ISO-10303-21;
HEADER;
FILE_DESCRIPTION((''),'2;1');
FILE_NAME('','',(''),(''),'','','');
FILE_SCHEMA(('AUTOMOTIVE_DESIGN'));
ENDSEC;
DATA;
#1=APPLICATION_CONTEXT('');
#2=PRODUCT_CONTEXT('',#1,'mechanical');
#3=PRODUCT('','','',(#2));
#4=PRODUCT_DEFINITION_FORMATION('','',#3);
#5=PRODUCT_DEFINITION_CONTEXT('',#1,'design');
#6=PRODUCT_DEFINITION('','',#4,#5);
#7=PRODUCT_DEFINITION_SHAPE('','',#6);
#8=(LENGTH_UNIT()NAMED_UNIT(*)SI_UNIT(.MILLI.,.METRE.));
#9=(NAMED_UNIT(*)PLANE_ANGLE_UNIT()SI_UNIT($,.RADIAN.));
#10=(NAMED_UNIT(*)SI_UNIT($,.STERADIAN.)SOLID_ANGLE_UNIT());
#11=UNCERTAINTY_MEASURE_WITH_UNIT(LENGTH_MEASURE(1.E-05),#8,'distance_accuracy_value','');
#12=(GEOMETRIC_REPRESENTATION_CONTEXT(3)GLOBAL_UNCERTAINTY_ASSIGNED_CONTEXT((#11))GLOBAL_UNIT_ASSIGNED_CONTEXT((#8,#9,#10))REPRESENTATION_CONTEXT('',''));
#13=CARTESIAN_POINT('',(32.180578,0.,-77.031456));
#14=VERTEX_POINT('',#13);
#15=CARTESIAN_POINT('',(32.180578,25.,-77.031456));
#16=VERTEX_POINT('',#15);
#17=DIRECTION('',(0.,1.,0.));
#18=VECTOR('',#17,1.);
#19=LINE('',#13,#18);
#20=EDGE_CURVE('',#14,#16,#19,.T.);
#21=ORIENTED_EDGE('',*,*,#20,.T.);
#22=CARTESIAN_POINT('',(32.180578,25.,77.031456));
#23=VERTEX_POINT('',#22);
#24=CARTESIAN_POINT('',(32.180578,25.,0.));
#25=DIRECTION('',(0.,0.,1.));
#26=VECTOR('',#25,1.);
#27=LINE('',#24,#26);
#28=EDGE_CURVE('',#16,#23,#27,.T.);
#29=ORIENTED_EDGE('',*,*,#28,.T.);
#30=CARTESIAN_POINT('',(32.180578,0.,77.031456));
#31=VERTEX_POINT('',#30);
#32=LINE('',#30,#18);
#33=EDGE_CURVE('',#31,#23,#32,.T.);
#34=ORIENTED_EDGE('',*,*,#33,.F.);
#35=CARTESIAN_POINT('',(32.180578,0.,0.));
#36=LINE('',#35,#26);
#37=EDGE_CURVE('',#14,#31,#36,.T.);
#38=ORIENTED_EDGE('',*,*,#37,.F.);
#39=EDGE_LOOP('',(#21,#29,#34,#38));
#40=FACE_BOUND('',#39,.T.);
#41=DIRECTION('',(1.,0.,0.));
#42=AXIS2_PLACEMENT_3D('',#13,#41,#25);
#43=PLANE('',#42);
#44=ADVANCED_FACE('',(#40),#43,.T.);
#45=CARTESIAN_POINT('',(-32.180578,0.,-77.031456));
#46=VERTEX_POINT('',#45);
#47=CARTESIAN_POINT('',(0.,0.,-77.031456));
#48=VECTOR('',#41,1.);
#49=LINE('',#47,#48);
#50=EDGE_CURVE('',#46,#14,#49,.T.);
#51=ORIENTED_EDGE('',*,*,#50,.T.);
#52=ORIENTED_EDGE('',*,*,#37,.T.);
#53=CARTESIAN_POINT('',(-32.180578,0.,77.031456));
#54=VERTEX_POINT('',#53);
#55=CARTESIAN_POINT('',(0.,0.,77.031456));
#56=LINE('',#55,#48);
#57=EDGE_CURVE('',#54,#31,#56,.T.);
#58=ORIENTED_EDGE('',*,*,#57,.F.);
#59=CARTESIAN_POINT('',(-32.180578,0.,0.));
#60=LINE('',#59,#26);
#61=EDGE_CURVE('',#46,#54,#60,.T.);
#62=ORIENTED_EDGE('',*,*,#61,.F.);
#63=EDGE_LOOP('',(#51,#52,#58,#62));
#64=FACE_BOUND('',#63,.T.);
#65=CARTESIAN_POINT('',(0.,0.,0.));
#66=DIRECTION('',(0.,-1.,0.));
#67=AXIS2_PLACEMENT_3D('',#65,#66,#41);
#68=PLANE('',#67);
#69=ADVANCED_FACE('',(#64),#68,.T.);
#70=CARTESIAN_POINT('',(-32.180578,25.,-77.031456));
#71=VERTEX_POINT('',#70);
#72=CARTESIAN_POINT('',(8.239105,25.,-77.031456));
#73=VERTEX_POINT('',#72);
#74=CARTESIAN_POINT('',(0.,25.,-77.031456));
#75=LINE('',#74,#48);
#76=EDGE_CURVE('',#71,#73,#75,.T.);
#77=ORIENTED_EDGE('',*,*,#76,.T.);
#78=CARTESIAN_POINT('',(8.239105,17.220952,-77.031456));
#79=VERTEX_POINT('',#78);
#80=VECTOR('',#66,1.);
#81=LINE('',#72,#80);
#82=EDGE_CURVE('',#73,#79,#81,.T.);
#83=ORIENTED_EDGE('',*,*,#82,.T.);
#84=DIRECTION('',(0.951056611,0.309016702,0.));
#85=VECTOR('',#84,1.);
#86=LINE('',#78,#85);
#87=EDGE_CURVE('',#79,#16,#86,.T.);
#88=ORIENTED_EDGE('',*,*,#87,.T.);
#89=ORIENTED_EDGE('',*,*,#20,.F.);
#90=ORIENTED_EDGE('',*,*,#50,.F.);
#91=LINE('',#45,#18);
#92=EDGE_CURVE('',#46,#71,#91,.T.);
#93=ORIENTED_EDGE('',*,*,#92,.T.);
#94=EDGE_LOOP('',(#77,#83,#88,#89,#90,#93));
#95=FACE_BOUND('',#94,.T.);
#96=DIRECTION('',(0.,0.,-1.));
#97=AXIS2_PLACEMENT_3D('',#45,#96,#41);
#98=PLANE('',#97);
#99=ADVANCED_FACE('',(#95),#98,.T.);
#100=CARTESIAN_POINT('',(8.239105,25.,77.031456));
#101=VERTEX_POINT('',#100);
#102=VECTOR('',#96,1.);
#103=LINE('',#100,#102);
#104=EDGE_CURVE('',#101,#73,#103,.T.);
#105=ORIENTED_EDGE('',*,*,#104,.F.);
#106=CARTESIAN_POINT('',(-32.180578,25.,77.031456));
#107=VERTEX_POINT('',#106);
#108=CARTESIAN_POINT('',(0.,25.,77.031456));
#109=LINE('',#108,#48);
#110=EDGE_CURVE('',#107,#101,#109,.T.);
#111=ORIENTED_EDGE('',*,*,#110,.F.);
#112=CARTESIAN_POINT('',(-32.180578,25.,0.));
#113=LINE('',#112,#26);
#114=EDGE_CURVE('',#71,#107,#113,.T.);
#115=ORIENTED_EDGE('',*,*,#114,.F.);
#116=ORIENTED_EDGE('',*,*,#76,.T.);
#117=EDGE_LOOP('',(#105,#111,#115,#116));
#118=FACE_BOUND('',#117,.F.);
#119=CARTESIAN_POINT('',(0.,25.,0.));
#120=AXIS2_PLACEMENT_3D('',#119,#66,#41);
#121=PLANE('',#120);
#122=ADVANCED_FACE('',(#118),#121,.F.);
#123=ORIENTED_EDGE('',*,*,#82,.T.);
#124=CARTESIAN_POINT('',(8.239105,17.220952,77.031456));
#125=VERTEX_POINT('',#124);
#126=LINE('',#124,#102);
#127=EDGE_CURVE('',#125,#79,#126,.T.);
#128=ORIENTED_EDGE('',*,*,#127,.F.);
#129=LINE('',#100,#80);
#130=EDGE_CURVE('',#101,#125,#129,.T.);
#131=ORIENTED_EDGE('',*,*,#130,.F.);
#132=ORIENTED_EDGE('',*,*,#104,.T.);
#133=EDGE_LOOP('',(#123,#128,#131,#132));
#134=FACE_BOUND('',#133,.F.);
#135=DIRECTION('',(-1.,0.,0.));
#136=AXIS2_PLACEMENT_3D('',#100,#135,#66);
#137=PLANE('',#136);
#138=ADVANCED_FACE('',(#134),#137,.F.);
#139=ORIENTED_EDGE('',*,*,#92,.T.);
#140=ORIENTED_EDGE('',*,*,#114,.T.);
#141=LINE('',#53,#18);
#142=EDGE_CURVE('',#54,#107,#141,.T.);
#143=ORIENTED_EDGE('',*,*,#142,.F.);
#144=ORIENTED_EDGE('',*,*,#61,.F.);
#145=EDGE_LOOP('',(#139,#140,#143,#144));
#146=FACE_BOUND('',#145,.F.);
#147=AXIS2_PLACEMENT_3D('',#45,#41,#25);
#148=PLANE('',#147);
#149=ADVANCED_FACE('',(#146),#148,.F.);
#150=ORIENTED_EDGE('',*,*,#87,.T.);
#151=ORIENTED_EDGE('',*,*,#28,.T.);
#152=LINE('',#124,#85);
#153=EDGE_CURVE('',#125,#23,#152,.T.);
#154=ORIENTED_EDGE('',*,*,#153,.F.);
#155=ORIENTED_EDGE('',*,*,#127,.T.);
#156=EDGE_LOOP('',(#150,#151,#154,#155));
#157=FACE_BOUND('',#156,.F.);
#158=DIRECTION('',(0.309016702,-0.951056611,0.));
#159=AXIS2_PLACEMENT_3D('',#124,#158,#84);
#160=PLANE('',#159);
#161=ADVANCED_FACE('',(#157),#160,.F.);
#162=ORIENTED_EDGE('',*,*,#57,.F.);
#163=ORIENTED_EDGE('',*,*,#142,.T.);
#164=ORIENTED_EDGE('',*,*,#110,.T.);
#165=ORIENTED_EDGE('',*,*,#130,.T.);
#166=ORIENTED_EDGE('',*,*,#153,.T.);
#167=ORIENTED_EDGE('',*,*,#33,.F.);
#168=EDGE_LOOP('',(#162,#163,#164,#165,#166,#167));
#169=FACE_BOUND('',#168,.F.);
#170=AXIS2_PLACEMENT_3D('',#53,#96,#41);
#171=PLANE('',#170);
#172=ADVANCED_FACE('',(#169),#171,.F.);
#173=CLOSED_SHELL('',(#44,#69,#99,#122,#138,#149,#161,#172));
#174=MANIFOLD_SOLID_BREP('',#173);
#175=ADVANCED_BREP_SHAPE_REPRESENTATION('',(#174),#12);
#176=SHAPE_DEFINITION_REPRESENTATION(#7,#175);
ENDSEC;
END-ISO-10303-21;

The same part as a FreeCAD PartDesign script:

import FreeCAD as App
import Part
import Sketcher

V = App.Vector
Q = App.Units.Quantity


def add_polygon(sketch, points):
    """Adds a closed chain of lines whose ends are joined by coincident constraints."""
    first, n = sketch.GeometryCount, len(points)
    for a, b in zip(points, points[1:] + points[:1]):
        sketch.addGeometry(Part.LineSegment(App.Vector(*a, 0), App.Vector(*b, 0)), False)
    for i in range(n):
        sketch.addConstraint(Sketcher.Constraint("Coincident", first + i, 2, first + (i + 1) % n, 1))

doc = App.newDocument("Part")
body = doc.addObject("PartDesign::Body", "Body")

# Sketch on XZ plane
sketch1 = doc.addObject("Sketcher::SketchObject", "Sketch")
body.addObject(sketch1)
sketch1.AttachmentSupport = (doc.XZ_Plane, [""])
sketch1.MapMode = "FlatFace"
add_polygon(sketch1, [(-32.180578, 77.031456), (-32.180578, -77.031456), (32.180578, -77.031456), (32.180578, 77.031456)])  # lines 0-3
sketch1.addConstraint([
    Sketcher.Constraint("Vertical", 0),
    Sketcher.Constraint("Horizontal", 1),
    Sketcher.Constraint("Vertical", 2),
    Sketcher.Constraint("Horizontal", 3),
    Sketcher.Constraint("Symmetric", 0, 2, 2, 2, -1, 1),
    Sketcher.Constraint("DistanceX", 1, 1, 1, 2, Q("64.361156 mm")),
    Sketcher.Constraint("DistanceY", 0, 2, 0, 1, Q("154.062912 mm")),
])
pad1 = doc.addObject("PartDesign::Pad", "Pad")
body.addObject(pad1)
pad1.Profile = sketch1
pad1.Length = 25
pad1.Reversed = True

# Sketch on XY plane
sketch2 = doc.addObject("Sketcher::SketchObject", "Sketch001")
body.addObject(sketch2)
sketch2.AttachmentSupport = (doc.XY_Plane, [""])
sketch2.MapMode = "FlatFace"
sketch2.AttachmentOffset = App.Placement(V(0, 0, 77.031456), App.Rotation())
add_polygon(sketch2, [(8.239105, 17.220952), (32.180578, 25), (8.239105, 25)])  # lines 0-2
sketch2.addConstraint([
    Sketcher.Constraint("Horizontal", 1),
    Sketcher.Constraint("Vertical", 2),
    Sketcher.Constraint("Angle", 0, Q("17.999982 deg")),
    Sketcher.Constraint("DistanceY", -1, 1, 0, 2, Q("25 mm")),
    Sketcher.Constraint("Distance", 0, Q("25.173552 mm")),
    Sketcher.Constraint("DistanceX", -1, 1, 0, 2, Q("32.180578 mm")),
])
pocket1 = doc.addObject("PartDesign::Pocket", "Pocket")
body.addObject(pocket1)
pocket1.Profile = sketch2
pocket1.Type = "ThroughAll"

doc.recompute()
